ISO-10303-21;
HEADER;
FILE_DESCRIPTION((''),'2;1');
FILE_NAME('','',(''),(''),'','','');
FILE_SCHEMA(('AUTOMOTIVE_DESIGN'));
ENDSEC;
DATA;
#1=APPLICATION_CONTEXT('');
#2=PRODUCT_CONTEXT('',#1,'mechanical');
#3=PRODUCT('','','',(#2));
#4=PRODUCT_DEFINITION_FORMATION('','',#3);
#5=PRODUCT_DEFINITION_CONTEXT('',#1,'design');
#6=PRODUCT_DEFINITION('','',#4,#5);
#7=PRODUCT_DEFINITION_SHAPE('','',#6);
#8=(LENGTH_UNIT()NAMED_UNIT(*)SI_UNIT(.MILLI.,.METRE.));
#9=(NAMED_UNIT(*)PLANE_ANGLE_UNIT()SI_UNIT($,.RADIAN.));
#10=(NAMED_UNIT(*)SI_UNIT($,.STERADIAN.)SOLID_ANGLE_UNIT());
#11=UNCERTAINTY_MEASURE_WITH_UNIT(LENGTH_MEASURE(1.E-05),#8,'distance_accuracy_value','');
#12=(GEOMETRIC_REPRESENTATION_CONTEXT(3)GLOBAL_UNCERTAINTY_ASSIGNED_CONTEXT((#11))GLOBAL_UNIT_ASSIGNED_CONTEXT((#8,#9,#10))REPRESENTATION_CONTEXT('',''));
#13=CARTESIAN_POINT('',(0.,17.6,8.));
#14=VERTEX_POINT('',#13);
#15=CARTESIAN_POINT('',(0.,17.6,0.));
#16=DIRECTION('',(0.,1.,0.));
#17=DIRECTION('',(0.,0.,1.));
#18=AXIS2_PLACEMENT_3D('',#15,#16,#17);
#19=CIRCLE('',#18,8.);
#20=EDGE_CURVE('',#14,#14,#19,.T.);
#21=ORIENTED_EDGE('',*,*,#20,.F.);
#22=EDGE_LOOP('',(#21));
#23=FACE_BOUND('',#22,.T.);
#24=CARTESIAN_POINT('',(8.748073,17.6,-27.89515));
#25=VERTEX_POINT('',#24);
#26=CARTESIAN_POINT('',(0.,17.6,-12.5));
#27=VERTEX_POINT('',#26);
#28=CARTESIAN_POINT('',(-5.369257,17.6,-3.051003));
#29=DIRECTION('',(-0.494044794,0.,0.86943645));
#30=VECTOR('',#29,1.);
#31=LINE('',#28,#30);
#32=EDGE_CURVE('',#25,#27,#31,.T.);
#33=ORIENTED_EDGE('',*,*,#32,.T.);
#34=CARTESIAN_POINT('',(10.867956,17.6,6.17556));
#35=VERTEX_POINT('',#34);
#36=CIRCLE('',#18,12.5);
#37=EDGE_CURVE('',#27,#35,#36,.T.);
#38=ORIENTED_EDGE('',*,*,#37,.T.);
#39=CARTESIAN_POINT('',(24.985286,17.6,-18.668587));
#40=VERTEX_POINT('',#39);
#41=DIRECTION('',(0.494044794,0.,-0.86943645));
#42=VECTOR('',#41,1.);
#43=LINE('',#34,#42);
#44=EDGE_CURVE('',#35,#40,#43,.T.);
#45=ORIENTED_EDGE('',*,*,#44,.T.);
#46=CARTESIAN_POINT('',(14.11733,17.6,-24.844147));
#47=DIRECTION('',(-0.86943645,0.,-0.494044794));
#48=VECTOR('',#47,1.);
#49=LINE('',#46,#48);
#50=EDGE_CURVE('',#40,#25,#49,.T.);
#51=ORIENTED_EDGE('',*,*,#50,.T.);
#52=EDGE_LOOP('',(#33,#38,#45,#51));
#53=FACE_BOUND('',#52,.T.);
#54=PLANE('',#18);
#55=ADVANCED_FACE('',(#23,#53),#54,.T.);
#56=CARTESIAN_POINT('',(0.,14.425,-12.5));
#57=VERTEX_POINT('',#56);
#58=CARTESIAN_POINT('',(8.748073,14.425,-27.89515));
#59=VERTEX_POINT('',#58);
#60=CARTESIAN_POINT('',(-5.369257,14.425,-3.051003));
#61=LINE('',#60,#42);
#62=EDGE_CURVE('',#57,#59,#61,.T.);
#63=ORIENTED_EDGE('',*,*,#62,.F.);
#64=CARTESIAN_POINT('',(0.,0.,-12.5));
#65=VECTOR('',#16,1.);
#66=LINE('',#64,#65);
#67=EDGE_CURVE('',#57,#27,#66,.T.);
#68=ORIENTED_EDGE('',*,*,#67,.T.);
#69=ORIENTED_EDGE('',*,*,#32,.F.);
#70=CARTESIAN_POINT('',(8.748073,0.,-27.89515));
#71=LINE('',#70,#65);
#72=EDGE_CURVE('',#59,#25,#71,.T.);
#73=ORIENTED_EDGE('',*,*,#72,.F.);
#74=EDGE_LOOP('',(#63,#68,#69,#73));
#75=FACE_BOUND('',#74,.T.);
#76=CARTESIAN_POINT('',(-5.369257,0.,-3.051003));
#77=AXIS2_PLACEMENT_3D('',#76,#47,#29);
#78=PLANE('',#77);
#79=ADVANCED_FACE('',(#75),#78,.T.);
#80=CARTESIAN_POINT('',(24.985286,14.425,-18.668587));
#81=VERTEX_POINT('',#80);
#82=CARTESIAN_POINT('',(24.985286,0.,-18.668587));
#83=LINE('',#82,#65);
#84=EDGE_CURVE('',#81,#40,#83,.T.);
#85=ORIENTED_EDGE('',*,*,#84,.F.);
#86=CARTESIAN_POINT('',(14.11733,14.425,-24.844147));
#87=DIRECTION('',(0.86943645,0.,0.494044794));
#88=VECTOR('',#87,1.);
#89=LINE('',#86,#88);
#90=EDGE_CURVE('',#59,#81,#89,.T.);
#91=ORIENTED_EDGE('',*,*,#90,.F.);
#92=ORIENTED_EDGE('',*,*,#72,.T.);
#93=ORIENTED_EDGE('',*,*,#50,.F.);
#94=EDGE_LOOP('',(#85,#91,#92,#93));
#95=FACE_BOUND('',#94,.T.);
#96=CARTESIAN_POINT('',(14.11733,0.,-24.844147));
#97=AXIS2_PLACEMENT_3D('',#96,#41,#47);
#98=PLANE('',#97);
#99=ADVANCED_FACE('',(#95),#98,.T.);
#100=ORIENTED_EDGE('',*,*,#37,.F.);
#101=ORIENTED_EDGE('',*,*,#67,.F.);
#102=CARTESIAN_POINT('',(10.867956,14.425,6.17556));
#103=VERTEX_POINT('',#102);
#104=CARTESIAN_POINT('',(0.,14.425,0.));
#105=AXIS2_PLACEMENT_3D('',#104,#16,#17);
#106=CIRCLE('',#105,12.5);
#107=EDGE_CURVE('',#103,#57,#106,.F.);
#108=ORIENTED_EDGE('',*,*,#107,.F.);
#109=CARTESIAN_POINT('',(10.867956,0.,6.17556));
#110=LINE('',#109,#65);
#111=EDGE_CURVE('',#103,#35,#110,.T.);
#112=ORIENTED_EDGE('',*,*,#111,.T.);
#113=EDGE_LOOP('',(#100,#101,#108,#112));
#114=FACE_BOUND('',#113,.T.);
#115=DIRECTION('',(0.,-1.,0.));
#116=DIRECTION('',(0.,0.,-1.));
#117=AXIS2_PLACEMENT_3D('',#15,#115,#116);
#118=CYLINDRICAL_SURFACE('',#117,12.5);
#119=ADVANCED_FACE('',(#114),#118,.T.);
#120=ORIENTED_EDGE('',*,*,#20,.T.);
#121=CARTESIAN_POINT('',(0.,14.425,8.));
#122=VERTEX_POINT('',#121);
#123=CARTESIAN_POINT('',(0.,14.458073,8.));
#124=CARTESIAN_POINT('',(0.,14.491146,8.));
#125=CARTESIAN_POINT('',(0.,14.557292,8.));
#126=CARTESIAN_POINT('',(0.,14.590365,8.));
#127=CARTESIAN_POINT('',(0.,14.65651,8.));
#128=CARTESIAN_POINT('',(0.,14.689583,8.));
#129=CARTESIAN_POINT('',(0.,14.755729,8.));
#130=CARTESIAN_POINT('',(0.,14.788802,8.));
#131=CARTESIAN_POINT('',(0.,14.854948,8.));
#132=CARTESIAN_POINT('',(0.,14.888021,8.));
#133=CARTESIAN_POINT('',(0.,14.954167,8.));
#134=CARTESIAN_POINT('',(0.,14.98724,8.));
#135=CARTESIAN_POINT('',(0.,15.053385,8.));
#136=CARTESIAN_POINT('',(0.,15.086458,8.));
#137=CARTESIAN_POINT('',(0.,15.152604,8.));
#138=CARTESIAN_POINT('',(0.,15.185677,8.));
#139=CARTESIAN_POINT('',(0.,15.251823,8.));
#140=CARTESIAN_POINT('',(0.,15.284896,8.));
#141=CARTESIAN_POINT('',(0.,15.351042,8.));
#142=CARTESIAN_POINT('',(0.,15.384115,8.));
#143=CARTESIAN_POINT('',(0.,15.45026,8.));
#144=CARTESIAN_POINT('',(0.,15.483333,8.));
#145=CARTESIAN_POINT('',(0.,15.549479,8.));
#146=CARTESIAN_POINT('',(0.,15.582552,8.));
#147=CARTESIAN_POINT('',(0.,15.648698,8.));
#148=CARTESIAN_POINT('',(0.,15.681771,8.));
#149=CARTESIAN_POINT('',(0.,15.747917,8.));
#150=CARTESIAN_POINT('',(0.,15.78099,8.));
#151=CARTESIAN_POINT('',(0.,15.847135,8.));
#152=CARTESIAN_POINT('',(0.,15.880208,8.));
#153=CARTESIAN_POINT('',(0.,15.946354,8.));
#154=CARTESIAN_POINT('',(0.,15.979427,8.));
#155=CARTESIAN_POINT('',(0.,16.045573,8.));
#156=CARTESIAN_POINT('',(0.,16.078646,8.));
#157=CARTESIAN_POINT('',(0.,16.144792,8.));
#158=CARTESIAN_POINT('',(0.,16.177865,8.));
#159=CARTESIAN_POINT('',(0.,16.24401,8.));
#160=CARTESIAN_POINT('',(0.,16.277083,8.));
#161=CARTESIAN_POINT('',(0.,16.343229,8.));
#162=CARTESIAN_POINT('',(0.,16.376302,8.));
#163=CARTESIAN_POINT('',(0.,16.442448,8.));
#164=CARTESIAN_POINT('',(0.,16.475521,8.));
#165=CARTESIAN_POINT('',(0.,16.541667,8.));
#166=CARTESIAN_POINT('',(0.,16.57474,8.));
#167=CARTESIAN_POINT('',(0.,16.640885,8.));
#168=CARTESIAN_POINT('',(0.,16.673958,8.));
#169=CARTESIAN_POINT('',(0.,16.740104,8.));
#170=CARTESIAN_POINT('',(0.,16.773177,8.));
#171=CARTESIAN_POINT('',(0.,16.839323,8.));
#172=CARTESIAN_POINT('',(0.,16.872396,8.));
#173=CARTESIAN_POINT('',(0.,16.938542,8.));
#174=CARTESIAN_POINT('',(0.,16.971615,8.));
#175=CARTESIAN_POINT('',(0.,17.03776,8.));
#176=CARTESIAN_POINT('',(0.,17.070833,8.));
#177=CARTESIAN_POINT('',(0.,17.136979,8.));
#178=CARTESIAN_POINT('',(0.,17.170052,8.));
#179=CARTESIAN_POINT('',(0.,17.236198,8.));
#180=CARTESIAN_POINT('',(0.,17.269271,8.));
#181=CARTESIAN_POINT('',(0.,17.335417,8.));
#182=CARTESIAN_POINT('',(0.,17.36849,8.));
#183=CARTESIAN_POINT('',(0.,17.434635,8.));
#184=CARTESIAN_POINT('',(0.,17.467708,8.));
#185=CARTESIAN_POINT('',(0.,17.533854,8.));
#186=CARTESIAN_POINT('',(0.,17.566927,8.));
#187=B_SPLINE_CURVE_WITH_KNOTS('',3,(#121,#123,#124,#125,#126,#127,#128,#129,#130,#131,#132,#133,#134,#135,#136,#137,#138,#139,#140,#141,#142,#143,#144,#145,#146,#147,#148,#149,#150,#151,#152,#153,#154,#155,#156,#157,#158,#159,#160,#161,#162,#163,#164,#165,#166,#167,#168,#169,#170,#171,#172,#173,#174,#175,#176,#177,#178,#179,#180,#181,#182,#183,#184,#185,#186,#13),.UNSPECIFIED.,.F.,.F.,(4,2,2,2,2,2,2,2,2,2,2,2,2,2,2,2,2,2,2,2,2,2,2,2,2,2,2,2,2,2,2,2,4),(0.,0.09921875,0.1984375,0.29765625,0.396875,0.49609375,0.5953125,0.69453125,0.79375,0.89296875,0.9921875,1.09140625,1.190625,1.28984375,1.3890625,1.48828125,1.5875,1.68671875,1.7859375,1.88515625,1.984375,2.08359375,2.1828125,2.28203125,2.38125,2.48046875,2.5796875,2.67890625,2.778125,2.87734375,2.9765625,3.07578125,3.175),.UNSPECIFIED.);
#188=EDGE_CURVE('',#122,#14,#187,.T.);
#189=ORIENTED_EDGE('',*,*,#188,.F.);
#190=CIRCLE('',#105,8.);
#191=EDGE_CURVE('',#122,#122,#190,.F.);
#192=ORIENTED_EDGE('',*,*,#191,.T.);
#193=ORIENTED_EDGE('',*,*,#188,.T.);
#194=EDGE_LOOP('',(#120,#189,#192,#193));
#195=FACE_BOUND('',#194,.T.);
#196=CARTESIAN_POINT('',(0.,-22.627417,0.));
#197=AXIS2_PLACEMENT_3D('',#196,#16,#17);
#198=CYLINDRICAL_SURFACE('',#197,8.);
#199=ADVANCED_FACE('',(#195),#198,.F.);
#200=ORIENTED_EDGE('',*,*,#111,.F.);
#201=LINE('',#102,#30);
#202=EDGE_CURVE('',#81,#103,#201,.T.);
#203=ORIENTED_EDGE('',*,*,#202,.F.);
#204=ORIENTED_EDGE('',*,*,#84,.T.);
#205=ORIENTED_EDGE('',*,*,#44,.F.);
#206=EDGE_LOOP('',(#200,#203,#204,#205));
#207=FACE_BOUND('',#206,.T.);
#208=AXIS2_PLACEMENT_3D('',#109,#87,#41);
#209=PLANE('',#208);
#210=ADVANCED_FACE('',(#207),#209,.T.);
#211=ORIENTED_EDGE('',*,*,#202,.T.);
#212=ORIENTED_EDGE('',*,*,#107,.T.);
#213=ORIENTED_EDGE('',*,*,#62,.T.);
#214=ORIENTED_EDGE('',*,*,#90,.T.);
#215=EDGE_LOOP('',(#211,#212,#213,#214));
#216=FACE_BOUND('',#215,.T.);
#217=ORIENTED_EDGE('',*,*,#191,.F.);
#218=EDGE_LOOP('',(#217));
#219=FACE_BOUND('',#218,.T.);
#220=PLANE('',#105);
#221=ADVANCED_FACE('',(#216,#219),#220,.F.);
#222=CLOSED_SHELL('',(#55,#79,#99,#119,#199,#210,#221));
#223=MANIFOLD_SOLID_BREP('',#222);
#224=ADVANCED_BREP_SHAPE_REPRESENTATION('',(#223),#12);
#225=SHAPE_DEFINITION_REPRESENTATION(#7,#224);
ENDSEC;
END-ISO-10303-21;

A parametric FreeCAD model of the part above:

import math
import FreeCAD as App
import Part
import Sketcher

doc = App.newDocument("Part")
body = doc.addObject("PartDesign::Body", "Body")

sketch1 = body.newObject("Sketcher::SketchObject", "Sketch")
sketch1.AttachmentSupport = (doc.getObject("XZ_Plane"), [""])
sketch1.MapMode = "FlatFace"
sketch1.addGeometry(Part.Circle(App.Vector(0, 0, 0), App.Vector(0, 0, 1), 12), False)
sketch1.addConstraint(Sketcher.Constraint("Coincident", 0, 3, -1, 1))
sketch1.addConstraint(Sketcher.Constraint("Diameter", 0, 25.0))
pad1 = body.newObject("PartDesign::Pad", "Pad")
pad1.Profile = sketch1
pad1.Length = 17.6
pad1.Reversed = True

sketch2 = body.newObject("Sketcher::SketchObject", "Sketch001")
sketch2.AttachmentSupport = (doc.getObject("XZ_Plane"), [""])
sketch2.MapMode = "FlatFace"
sketch2.AttachmentOffset = App.Placement(App.Vector(0, 0, -17.6), App.Rotation())
sketch2.addGeometry(Part.Circle(App.Vector(0, 0, 0), App.Vector(0, 0, 1), 6), False)
sketch2.addConstraint(Sketcher.Constraint("Coincident", 0, 3, -1, 1))
sketch2.addConstraint(Sketcher.Constraint("Diameter", 0, 11.0))
pocket1 = body.newObject("PartDesign::Pocket", "Pocket")
pocket1.Profile = sketch2
pocket1.Length = 50.8
pocket1.Reversed = True

sketch3 = body.newObject("Sketcher::SketchObject", "Sketch002")
sketch3.AttachmentSupport = (doc.getObject("XZ_Plane"), [""])
sketch3.MapMode = "FlatFace"
sketch3.AttachmentOffset = App.Placement(App.Vector(0, 0, -17.6), App.Rotation())
sketch3.addGeometry(Part.Circle(App.Vector(0, 0, 0), App.Vector(0, 0, 1), 8), False)
sketch3.addConstraint(Sketcher.Constraint("Coincident", 0, 3, -1, 1))
sketch3.addConstraint(Sketcher.Constraint("Diameter", 0, 16.0))
pocket2 = body.newObject("PartDesign::Pocket", "Pocket001")
pocket2.Profile = sketch3
pocket2.Length = 15.6
pocket2.Reversed = True

sketch4 = body.newObject("Sketcher::SketchObject", "Sketch003")
sketch4.AttachmentSupport = (doc.getObject("XZ_Plane"), [""])
sketch4.MapMode = "FlatFace"
sketch4.AttachmentOffset = App.Placement(App.Vector(0, 0, -17.6), App.Rotation())
sketch4.addGeometry(Part.ArcOfCircle(Part.Circle(App.Vector(0, 0, 0), App.Vector(0, 0, 1), 13), math.radians(0), math.radians(30)), False)
sketch4.addGeometry(Part.LineSegment(App.Vector(11, 6, 0), App.Vector(25, -19, 0)), False)
sketch4.addGeometry(Part.LineSegment(App.Vector(25, -19, 0), App.Vector(9, -28, 0)), False)
sketch4.addGeometry(Part.LineSegment(App.Vector(9, -28, 0), App.Vector(0, -12, 0)), False)
sketch4.addGeometry(Part.ArcOfCircle(Part.Circle(App.Vector(0, 0, 0), App.Vector(0, 0, 1), 12), math.radians(-90), math.radians(0)), False)
sketch4.addConstraint(Sketcher.Constraint("Tangent", 0, 2, 1, 1))
sketch4.addConstraint(Sketcher.Constraint("Coincident", 1, 2, 2, 1))
sketch4.addConstraint(Sketcher.Constraint("Coincident", 2, 2, 3, 1))
sketch4.addConstraint(Sketcher.Constraint("Coincident", 3, 2, 4, 1))
sketch4.addConstraint(Sketcher.Constraint("Tangent", 4, 2, 0, 1))
sketch4.addConstraint(Sketcher.Constraint("Coincident", 0, 3, -1, 1))
sketch4.addConstraint(Sketcher.Constraint("Equal", 0, 4))
sketch4.addConstraint(Sketcher.Constraint("PointOnObject", 3, 2, -2))
sketch4.addConstraint(Sketcher.Constraint("PointOnObject", 4, 2, -1))
sketch4.addConstraint(Sketcher.Constraint("Perpendicular", 1, 2))
sketch4.addConstraint(Sketcher.Constraint("Perpendicular", 2, 3))
sketch4.addConstraint(Sketcher.Constraint("Radius", 0, 12.5))
sketch4.addConstraint(Sketcher.Constraint("Distance", 1, 28.575))
sketch4.addConstraint(Sketcher.Constraint("Distance", 2, 18.67556))
pad2 = body.newObject("PartDesign::Pad", "Pad001")
pad2.Profile = sketch4
pad2.Length = 17.6

sketch5 = body.newObject("Sketcher::SketchObject", "Sketch004")
sketch5.AttachmentSupport = (doc.getObject("XZ_Plane"), [""])
sketch5.MapMode = "FlatFace"
sketch5.addGeometry(Part.LineSegment(App.Vector(25, -19, 0), App.Vector(11, 6, 0)), False)
sketch5.addGeometry(Part.ArcOfCircle(Part.Circle(App.Vector(0, 0, 0), App.Vector(0, 0, 1), 12), math.radians(30), math.radians(270)), False)
sketch5.addGeometry(Part.LineSegment(App.Vector(0, -12, 0), App.Vector(9, -28, 0)), False)
sketch5.addGeometry(Part.LineSegment(App.Vector(9, -28, 0), App.Vector(25, -19, 0)), False)
sketch5.addGeometry(Part.Circle(App.Vector(0, 0, 0), App.Vector(0, 0, 1), 6), False)
sketch5.addConstraint(Sketcher.Constraint("Tangent", 0, 2, 1, 1))
sketch5.addConstraint(Sketcher.Constraint("Coincident", 1, 2, 2, 1))
sketch5.addConstraint(Sketcher.Constraint("Coincident", 2, 2, 3, 1))
sketch5.addConstraint(Sketcher.Constraint("Coincident", 3, 2, 0, 1))
sketch5.addConstraint(Sketcher.Constraint("Coincident", 1, 3, -1, 1))
sketch5.addConstraint(Sketcher.Constraint("Coincident", 4, 3, -1, 1))
sketch5.addConstraint(Sketcher.Constraint("PointOnObject", 1, 2, -2))
sketch5.addConstraint(Sketcher.Constraint("Parallel", 0, 2))
sketch5.addConstraint(Sketcher.Constraint("Perpendicular", 2, 3))
sketch5.addConstraint(Sketcher.Constraint("Diameter", 4, 11.0))
sketch5.addConstraint(Sketcher.Constraint("Radius", 1, 12.5))
sketch5.addConstraint(Sketcher.Constraint("Distance", 0, 28.575))
sketch5.addConstraint(Sketcher.Constraint("Distance", 3, 18.67556))
pocket3 = body.newObject("PartDesign::Pocket", "Pocket002")
pocket3.Profile = sketch5
pocket3.Length = 14.425

doc.recompute()
